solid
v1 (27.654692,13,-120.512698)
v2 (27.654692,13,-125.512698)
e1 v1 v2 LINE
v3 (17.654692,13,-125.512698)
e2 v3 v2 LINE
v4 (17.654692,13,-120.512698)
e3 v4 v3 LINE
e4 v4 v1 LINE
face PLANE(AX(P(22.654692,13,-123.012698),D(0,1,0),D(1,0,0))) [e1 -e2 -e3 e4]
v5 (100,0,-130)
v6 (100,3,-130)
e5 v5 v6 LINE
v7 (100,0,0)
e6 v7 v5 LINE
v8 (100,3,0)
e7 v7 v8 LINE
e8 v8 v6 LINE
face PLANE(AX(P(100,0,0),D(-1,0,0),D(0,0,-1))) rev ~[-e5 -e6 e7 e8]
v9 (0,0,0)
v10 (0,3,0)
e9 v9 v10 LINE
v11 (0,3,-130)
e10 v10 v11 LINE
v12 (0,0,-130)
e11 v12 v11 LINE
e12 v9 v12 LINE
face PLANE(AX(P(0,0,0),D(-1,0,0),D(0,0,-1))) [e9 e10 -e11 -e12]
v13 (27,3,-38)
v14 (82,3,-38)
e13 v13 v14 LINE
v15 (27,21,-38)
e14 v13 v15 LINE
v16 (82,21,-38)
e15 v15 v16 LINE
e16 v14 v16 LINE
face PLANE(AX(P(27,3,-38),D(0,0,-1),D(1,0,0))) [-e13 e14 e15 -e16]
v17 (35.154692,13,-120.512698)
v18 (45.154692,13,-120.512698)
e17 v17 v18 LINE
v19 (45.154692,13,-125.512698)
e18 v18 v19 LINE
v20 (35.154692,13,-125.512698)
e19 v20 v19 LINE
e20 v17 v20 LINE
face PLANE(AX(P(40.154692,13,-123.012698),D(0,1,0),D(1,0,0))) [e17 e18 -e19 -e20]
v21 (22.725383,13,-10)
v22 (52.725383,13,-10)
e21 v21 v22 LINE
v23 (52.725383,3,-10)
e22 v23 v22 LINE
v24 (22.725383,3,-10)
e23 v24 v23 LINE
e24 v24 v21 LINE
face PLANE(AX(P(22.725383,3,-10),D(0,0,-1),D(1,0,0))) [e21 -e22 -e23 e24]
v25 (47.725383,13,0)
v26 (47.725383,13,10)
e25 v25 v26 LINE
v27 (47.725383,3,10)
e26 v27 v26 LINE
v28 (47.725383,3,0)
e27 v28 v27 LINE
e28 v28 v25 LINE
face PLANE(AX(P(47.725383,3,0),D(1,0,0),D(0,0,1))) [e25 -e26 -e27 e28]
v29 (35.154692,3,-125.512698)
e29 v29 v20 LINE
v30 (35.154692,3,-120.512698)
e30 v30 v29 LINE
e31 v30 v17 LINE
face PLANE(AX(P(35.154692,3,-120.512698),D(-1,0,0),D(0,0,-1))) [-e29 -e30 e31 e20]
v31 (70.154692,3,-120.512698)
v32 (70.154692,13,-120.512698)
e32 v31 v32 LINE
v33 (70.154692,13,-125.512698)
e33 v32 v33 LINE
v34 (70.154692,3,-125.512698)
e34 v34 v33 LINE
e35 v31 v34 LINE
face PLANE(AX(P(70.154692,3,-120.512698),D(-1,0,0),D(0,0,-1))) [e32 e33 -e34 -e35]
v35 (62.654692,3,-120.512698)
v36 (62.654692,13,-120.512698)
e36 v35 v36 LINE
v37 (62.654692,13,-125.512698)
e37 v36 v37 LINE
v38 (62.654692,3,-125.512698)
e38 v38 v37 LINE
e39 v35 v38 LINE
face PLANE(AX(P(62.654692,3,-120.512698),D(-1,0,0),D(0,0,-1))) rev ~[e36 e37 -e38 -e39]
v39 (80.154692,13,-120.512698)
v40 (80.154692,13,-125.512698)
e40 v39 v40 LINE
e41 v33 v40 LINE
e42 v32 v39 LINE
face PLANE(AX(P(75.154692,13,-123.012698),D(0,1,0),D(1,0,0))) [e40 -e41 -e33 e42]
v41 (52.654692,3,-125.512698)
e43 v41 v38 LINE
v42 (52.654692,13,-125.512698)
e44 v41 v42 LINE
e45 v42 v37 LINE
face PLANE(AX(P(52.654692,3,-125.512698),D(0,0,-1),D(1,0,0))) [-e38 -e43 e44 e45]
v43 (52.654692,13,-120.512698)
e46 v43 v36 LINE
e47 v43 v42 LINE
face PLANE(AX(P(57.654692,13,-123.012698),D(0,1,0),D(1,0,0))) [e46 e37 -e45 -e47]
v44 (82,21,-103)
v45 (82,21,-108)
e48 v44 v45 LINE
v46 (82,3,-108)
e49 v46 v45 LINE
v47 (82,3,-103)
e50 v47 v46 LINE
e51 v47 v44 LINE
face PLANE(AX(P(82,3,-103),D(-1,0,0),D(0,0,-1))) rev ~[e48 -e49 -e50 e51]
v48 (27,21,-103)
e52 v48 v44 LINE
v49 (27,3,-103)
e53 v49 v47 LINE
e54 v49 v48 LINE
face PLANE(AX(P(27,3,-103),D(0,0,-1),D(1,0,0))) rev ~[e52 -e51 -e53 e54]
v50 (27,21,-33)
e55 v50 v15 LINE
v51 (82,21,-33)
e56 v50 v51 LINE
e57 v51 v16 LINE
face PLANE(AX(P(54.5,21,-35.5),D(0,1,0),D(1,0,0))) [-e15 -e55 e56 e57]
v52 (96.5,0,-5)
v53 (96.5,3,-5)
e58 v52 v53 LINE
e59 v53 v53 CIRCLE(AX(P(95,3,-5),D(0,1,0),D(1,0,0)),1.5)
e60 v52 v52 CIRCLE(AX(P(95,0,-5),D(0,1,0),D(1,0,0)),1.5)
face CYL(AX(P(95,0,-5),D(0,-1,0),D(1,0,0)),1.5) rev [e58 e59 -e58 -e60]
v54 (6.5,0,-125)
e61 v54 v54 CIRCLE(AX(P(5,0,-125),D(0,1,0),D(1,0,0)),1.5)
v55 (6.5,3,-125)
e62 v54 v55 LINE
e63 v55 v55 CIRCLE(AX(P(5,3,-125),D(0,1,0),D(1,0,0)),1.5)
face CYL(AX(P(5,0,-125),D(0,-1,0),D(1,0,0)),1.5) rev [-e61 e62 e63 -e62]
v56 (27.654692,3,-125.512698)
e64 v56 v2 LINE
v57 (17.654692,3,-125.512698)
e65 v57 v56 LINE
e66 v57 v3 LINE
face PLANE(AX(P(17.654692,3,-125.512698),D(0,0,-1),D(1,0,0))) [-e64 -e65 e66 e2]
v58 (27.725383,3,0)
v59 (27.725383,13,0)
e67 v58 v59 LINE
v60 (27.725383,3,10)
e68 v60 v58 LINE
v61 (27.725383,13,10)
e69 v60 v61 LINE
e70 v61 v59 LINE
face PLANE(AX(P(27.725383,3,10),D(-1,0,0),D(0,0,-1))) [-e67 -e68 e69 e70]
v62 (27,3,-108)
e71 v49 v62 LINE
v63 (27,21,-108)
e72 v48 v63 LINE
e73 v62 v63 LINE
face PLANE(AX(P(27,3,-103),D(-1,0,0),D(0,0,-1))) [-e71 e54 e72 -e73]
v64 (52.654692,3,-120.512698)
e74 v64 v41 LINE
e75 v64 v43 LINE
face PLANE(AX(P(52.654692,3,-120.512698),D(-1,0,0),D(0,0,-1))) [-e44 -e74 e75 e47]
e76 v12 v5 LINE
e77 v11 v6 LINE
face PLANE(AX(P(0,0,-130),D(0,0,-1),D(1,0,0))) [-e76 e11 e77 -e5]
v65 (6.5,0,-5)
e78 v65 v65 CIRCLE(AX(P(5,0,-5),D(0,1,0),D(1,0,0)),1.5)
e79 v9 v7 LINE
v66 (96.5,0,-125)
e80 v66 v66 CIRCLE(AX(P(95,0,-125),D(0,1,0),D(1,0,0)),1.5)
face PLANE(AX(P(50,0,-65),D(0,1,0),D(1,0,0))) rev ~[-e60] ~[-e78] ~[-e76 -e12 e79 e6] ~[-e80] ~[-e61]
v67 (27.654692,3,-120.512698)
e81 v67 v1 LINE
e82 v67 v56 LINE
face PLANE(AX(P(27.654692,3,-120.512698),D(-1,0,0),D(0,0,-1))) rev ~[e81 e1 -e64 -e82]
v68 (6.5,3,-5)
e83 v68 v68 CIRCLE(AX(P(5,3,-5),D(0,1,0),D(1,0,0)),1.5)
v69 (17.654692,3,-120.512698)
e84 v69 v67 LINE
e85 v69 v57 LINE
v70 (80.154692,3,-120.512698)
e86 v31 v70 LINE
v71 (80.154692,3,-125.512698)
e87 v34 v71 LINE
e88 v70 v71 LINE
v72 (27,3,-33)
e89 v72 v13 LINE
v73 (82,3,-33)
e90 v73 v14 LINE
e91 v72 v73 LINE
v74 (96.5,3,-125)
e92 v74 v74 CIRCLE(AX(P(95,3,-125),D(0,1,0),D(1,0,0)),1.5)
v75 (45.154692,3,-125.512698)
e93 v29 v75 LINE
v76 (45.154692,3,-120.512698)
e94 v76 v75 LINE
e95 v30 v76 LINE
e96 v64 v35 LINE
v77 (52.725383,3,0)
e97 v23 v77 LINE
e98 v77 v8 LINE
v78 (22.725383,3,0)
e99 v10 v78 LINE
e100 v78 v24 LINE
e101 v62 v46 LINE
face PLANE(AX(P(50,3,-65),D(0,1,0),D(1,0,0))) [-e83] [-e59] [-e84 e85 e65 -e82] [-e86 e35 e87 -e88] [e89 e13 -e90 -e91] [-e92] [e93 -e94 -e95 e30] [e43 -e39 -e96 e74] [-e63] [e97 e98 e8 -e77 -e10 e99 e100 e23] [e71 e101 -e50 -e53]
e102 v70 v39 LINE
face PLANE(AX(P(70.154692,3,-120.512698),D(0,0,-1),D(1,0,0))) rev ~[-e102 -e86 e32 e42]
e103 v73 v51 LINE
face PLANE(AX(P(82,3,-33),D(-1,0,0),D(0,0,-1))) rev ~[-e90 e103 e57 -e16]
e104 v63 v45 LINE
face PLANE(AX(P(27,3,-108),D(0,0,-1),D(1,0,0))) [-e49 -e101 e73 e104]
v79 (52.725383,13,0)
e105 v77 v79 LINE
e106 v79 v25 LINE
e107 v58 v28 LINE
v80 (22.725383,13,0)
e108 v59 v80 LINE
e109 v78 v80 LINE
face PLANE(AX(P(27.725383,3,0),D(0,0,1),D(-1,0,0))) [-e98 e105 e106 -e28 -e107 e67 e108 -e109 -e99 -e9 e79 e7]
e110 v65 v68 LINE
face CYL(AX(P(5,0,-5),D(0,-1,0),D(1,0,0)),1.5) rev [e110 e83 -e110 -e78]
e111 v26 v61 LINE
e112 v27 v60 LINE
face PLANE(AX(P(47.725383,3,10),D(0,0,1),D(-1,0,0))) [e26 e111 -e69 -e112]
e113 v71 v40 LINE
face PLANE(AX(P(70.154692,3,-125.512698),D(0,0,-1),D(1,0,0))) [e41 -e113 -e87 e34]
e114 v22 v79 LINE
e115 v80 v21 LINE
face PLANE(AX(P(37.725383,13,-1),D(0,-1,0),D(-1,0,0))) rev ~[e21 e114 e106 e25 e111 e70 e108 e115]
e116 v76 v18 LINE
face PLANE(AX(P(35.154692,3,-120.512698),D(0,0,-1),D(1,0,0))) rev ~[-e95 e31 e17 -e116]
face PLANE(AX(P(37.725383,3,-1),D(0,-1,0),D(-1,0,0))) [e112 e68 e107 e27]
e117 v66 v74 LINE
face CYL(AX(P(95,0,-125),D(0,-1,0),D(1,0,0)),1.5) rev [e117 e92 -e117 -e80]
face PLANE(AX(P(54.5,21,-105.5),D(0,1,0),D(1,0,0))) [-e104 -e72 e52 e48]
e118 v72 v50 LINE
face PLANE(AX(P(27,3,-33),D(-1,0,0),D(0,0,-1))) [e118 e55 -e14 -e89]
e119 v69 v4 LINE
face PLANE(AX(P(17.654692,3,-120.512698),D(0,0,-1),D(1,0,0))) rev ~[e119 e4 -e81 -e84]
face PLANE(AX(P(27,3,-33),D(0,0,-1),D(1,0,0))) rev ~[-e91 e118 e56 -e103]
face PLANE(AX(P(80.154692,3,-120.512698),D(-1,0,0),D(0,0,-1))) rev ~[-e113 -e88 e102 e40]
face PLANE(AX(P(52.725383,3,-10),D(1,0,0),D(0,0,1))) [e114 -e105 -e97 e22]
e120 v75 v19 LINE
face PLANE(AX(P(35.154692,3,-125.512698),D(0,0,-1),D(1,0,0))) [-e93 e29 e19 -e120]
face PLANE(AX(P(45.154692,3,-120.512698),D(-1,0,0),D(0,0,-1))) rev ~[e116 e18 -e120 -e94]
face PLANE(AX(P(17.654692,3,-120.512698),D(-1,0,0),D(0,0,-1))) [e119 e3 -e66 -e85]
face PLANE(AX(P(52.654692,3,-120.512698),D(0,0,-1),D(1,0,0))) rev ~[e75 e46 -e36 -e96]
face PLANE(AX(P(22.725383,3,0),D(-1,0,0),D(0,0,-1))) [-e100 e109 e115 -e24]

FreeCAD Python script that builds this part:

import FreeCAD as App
import Part
import Sketcher

V = App.Vector


def add_polygon(sketch, points):
    """Adds a closed chain of lines whose ends are joined by coincident constraints."""
    first, n = sketch.GeometryCount, len(points)
    for a, b in zip(points, points[1:] + points[:1]):
        sketch.addGeometry(Part.LineSegment(App.Vector(*a, 0), App.Vector(*b, 0)), False)
    for i in range(n):
        sketch.addConstraint(Sketcher.Constraint("Coincident", first + i, 2, first + (i + 1) % n, 1))

doc = App.newDocument("Part")
params = doc.addObject("Spreadsheet::Sheet", "Params")
for row, (alias, value) in enumerate([
    ("sketch1_diameter", "3 mm"),
    ("sketch1_width", "100 mm"),
    ("sketch1_height", "130 mm"),
    ("pad1_length", "3 mm"),
    ("sketch2_width", "55 mm"),
    ("sketch2_height", "5 mm"),
    ("pad2_length", "18 mm"),
    ("sketch3_width", "5 mm"),
    ("sketch3_width2", "20 mm"),
    ("sketch3_height", "10 mm"),
    ("pad3_length", "10 mm"),
    ("sketch4_width", "10 mm"),
    ("sketch4_height", "5 mm"),
    ("pad4_length", "10 mm"),
], start=1):
    params.set(f"A{row}", alias)
    params.set(f"B{row}", "=" + value)
    params.setAlias(f"B{row}", alias)

body = doc.addObject("PartDesign::Body", "Body")

# Sketch on XZ plane
sketch1 = body.newObject("Sketcher::SketchObject", "Sketch")
sketch1.AttachmentSupport = (doc.getObject("XZ_Plane"), [""])
sketch1.MapMode = "FlatFace"
add_polygon(sketch1, [(0, -130), (0, 0), (100, 0), (100, -130)])  # lines 0-3
sketch1.addGeometry(Part.Circle(V(5, -5, 0), V(0, 0, 1), 1.5), False)  # 4
sketch1.addGeometry(Part.Circle(V(95, -5, 0), V(0, 0, 1), 1.5), False)  # 5
sketch1.addGeometry(Part.Circle(V(5, -125, 0), V(0, 0, 1), 1.5), False)  # 6
sketch1.addGeometry(Part.Circle(V(95, -125, 0), V(0, 0, 1), 1.5), False)  # 7
sketch1.addConstraint([
    Sketcher.Constraint("Vertical", 0),
    Sketcher.Constraint("Horizontal", 1),
    Sketcher.Constraint("Vertical", 2),
    Sketcher.Constraint("Horizontal", 3),
    Sketcher.Constraint("Coincident", 0, 2, -1, 1),
    Sketcher.Constraint("Equal", 4, 5),
    Sketcher.Constraint("Equal", 5, 6),
    Sketcher.Constraint("Equal", 6, 7),
    Sketcher.Constraint("Horizontal", 4, 3, 5, 3),
    Sketcher.Constraint("Horizontal", 6, 3, 7, 3),
    Sketcher.Constraint("Vertical", 4, 3, 6, 3),
    Sketcher.Constraint("Vertical", 5, 3, 7, 3),
    Sketcher.Constraint("Diameter", 4, 3.0),
    Sketcher.Constraint("DistanceX", 1, 1, 1, 2, 100.0),
    Sketcher.Constraint("DistanceY", 0, 1, 0, 2, 130.0),
    Sketcher.Constraint("DistanceX", -1, 1, 4, 3, 5.0),
    Sketcher.Constraint("DistanceY", 4, 3, -1, 1, 5.0),
    Sketcher.Constraint("DistanceX", -1, 1, 5, 3, 95.0),
    Sketcher.Constraint("DistanceY", 6, 3, -1, 1, 125.0),
])
sketch1.setExpression("Constraints[16]", "Params.sketch1_diameter")
sketch1.setExpression("Constraints[17]", "Params.sketch1_width")
sketch1.setExpression("Constraints[18]", "Params.sketch1_height")
pad1 = body.newObject("PartDesign::Pad", "Pad")
pad1.Profile = sketch1
pad1.setExpression("Length", "Params.pad1_length")
pad1.Reversed = True

# Sketch on XZ plane
sketch2 = body.newObject("Sketcher::SketchObject", "Sketch001")
sketch2.AttachmentSupport = (doc.getObject("XZ_Plane"), [""])
sketch2.MapMode = "FlatFace"
sketch2.AttachmentOffset = App.Placement(V(0, 0, -3), App.Rotation())
add_polygon(sketch2, [(27, -108), (27, -103), (82, -103), (82, -108)])  # lines 0-3
add_polygon(sketch2, [(27, -38), (27, -33), (82, -33), (82, -38)])  # lines 4-7
sketch2.addConstraint([
    Sketcher.Constraint("Vertical", 0),
    Sketcher.Constraint("Horizontal", 1),
    Sketcher.Constraint("Vertical", 2),
    Sketcher.Constraint("Horizontal", 3),
    Sketcher.Constraint("Vertical", 4),
    Sketcher.Constraint("Horizontal", 5),
    Sketcher.Constraint("Vertical", 6),
    Sketcher.Constraint("Horizontal", 7),
    Sketcher.Constraint("Vertical", 3, 2, 4, 2),
    Sketcher.Constraint("Vertical", 2, 2, 5, 2),
    Sketcher.Constraint("Equal", 2, 4),
    Sketcher.Constraint("DistanceX", 1, 1, 1, 2, 55.0),
    Sketcher.Constraint("DistanceY", 0, 1, 0, 2, 5.0),
    Sketcher.Constraint("DistanceX", -1, 1, 0, 2, 27.0),
    Sketcher.Constraint("DistanceY", 0, 2, -1, 1, 103.0),
    Sketcher.Constraint("DistanceY", 4, 2, -1, 1, 33.0),
])
sketch2.setExpression("Constraints[19]", "Params.sketch2_width")
sketch2.setExpression("Constraints[20]", "Params.sketch2_height")
pad2 = body.newObject("PartDesign::Pad", "Pad001")
pad2.Profile = sketch2
pad2.setExpression("Length", "Params.pad2_length")
pad2.Reversed = True

# Sketch on XZ plane
sketch3 = body.newObject("Sketcher::SketchObject", "Sketch002")
sketch3.AttachmentSupport = (doc.getObject("XZ_Plane"), [""])
sketch3.MapMode = "FlatFace"
sketch3.AttachmentOffset = App.Placement(V(0, 0, -3), App.Rotation())
add_polygon(sketch3, [(23, -10), (23, 0), (28, 0), (28, 10), (48, 10), (48, 0), (53, 0), (53, -10)])  # lines 0-7
sketch3.addConstraint([
    Sketcher.Constraint("Vertical", 0),
    Sketcher.Constraint("Horizontal", 1),
    Sketcher.Constraint("Vertical", 2),
    Sketcher.Constraint("Horizontal", 3),
    Sketcher.Constraint("Vertical", 4),
    Sketcher.Constraint("Horizontal", 5),
    Sketcher.Constraint("Vertical", 6),
    Sketcher.Constraint("Horizontal", 7),
    Sketcher.Constraint("PointOnObject", 0, 2, -1),
    Sketcher.Constraint("PointOnObject", 4, 2, -1),
    Sketcher.Constraint("Equal", 1, 5),
    Sketcher.Constraint("Equal", 0, 2),
    Sketcher.Constraint("DistanceX", 1, 1, 1, 2, 5.0),
    Sketcher.Constraint("DistanceX", 3, 1, 3, 2, 20.0),
    Sketcher.Constraint("DistanceY", 0, 1, 0, 2, 10.0),
    Sketcher.Constraint("DistanceX", -1, 1, 0, 2, 22.725383),
])
sketch3.setExpression("Constraints[20]", "Params.sketch3_width")
sketch3.setExpression("Constraints[21]", "Params.sketch3_width2")
sketch3.setExpression("Constraints[22]", "Params.sketch3_height")
pad3 = body.newObject("PartDesign::Pad", "Pad002")
pad3.Profile = sketch3
pad3.setExpression("Length", "Params.pad3_length")
pad3.Reversed = True

# Sketch on XZ plane
sketch4 = body.newObject("Sketcher::SketchObject", "Sketch003")
sketch4.AttachmentSupport = (doc.getObject("XZ_Plane"), [""])
sketch4.MapMode = "FlatFace"
sketch4.AttachmentOffset = App.Placement(V(0, 0, -3), App.Rotation())
add_polygon(sketch4, [(18, -126), (18, -121), (28, -121), (28, -126)])  # lines 0-3
add_polygon(sketch4, [(35, -126), (35, -121), (45, -121), (45, -126)])  # lines 4-7
add_polygon(sketch4, [(53, -126), (53, -121), (63, -121), (63, -126)])  # lines 8-11
add_polygon(sketch4, [(70, -126), (70, -121), (80, -121), (80, -126)])  # lines 12-15
sketch4.addConstraint([
    Sketcher.Constraint("Vertical", 0),
    Sketcher.Constraint("Horizontal", 1),
    Sketcher.Constraint("Vertical", 2),
    Sketcher.Constraint("Horizontal", 3),
    Sketcher.Constraint("Vertical", 4),
    Sketcher.Constraint("Horizontal", 5),
    Sketcher.Constraint("Vertical", 6),
    Sketcher.Constraint("Horizontal", 7),
    Sketcher.Constraint("Vertical", 8),
    Sketcher.Constraint("Horizontal", 9),
    Sketcher.Constraint("Vertical", 10),
    Sketcher.Constraint("Horizontal", 11),
    Sketcher.Constraint("Vertical", 12),
    Sketcher.Constraint("Horizontal", 13),
    Sketcher.Constraint("Vertical", 14),
    Sketcher.Constraint("Horizontal", 15),
    Sketcher.Constraint("Horizontal", 1, 2, 4, 2),
    Sketcher.Constraint("Horizontal", 3, 2, 6, 2),
    Sketcher.Constraint("Horizontal", 5, 2, 8, 2),
    Sketcher.Constraint("Horizontal", 7, 2, 10, 2),
    Sketcher.Constraint("Horizontal", 9, 2, 12, 2),
    Sketcher.Constraint("Horizontal", 11, 2, 14, 2),
    Sketcher.Constraint("Equal", 3, 5),
    Sketcher.Constraint("Equal", 7, 9),
    Sketcher.Constraint("Equal", 11, 13),
    Sketcher.Constraint("DistanceX", 1, 1, 1, 2, 10.0),
    Sketcher.Constraint("DistanceY", 0, 1, 0, 2, 5.0),
    Sketcher.Constraint("DistanceX", 1, 2, 8, 2, 25.0),
    Sketcher.Constraint("DistanceX", 5, 2, 12, 2, 25.0),
    Sketcher.Constraint("DistanceX", 1, 2, 4, 2, 7.5),
    Sketcher.Constraint("DistanceY", 0, 2, -1, 1, 120.512698),
    Sketcher.Constraint("DistanceX", -1, 1, 0, 2, 17.654692),
])
sketch4.setExpression("Constraints[41]", "Params.sketch4_width")
sketch4.setExpression("Constraints[42]", "Params.sketch4_height")
pad4 = body.newObject("PartDesign::Pad", "Pad003")
pad4.Profile = sketch4
pad4.setExpression("Length", "Params.pad4_length")
pad4.Reversed = True

doc.recompute()
